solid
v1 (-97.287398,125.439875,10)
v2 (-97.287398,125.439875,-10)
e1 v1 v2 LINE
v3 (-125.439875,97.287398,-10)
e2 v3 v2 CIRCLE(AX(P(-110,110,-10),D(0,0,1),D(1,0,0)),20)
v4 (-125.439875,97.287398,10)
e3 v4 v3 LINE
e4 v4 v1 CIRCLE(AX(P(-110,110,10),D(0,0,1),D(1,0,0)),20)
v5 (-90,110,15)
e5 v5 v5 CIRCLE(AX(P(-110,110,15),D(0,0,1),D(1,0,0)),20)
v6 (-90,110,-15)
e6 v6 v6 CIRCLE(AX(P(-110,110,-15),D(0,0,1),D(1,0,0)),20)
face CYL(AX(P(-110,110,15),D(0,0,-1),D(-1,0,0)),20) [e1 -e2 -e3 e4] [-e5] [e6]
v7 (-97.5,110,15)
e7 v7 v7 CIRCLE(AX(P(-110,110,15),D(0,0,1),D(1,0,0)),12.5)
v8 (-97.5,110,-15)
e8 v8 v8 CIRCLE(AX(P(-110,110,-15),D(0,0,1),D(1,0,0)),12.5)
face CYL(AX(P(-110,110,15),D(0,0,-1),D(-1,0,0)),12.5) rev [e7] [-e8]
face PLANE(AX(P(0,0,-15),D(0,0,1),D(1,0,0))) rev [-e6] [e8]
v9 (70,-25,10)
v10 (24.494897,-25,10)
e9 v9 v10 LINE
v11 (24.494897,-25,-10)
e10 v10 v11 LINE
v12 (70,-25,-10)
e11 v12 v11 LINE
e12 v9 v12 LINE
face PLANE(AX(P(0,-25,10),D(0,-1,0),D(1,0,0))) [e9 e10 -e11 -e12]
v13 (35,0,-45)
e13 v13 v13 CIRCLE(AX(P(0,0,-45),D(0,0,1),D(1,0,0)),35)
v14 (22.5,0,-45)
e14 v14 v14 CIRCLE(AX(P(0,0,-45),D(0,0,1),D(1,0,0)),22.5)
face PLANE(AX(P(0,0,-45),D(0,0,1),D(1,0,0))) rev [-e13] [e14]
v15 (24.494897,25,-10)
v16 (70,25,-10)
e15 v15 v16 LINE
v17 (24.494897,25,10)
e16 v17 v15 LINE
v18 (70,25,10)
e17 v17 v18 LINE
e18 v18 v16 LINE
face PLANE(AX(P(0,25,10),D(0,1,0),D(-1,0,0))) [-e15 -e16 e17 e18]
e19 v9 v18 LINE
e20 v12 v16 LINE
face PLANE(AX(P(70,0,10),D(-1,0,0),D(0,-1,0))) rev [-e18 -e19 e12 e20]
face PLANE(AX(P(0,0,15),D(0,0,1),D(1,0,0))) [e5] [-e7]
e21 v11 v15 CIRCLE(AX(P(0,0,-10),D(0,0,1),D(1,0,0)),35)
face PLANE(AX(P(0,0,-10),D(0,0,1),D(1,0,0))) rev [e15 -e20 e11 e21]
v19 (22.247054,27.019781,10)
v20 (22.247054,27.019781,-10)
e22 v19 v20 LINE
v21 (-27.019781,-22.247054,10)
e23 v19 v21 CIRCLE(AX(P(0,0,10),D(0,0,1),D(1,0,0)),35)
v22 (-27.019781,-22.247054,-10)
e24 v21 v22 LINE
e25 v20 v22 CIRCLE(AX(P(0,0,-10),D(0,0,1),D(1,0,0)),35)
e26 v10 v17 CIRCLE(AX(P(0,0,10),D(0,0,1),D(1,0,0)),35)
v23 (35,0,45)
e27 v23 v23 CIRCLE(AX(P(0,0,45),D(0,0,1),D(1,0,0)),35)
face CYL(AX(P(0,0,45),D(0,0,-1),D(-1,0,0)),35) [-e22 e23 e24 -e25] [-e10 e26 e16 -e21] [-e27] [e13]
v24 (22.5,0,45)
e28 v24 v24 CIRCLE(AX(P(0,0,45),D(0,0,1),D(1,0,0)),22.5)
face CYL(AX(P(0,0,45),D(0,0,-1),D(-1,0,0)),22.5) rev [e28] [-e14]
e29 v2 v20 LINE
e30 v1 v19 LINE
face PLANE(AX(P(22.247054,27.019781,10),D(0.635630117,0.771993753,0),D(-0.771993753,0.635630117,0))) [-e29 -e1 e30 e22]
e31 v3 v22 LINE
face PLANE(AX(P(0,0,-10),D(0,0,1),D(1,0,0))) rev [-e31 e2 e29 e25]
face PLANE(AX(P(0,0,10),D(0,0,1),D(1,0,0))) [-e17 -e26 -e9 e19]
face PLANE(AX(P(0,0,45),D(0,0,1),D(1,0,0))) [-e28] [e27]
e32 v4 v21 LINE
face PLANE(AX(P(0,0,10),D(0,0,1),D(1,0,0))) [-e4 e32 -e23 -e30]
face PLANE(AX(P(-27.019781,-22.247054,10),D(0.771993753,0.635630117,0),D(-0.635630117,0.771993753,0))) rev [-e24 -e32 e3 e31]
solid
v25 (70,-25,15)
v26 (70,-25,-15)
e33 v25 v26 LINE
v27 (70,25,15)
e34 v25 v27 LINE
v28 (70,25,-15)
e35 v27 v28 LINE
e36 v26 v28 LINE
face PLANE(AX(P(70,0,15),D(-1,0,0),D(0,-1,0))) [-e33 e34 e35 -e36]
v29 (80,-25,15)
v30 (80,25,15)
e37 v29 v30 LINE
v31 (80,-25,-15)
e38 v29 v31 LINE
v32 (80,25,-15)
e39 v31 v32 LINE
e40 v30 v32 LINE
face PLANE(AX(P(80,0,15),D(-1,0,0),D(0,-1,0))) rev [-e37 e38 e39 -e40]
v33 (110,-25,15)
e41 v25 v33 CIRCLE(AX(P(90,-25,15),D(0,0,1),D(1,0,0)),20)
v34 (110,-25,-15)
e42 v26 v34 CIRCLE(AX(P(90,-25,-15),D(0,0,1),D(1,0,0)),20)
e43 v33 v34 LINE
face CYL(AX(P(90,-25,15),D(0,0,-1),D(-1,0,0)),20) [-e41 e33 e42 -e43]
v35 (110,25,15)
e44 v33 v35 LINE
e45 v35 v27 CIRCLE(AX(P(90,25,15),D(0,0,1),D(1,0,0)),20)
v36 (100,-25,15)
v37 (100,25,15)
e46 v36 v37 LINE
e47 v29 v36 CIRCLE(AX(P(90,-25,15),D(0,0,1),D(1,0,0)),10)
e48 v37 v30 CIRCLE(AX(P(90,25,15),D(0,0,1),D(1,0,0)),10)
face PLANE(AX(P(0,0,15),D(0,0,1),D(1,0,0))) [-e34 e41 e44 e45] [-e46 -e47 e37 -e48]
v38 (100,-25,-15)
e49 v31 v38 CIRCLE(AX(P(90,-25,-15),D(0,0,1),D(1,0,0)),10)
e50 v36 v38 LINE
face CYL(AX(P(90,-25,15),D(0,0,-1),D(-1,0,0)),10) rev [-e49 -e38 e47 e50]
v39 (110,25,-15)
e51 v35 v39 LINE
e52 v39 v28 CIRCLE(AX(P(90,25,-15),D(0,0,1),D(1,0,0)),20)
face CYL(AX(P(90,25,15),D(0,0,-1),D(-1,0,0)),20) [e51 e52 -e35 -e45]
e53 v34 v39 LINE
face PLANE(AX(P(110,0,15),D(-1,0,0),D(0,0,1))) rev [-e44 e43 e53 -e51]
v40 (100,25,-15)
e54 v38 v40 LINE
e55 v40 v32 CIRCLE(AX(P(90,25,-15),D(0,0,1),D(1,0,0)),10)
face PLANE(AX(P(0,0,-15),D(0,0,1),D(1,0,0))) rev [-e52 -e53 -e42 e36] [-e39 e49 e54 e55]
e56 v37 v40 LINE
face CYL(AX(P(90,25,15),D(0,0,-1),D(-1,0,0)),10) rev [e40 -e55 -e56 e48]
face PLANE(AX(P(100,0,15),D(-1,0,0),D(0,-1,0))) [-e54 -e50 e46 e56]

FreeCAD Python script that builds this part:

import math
import FreeCAD as App
import Part
import Sketcher
Q = App.Units.Quantity

doc = App.newDocument("Part")
body = doc.addObject("PartDesign::Body", "Body")

sketch1 = body.newObject("Sketcher::SketchObject", "Sketch")
sketch1.AttachmentSupport = (doc.getObject("XY_Plane"), [""])
sketch1.MapMode = "FlatFace"
sketch1.addGeometry(Part.Circle(App.Vector(0, 0, 0), App.Vector(0, 0, 1), 35), False)
sketch1.addGeometry(Part.Circle(App.Vector(0, 0, 0), App.Vector(0, 0, 1), 22.5), False)
sketch1.addConstraint(Sketcher.Constraint("Coincident", 0, 3, -1, 1))
sketch1.addConstraint(Sketcher.Constraint("Coincident", 1, 3, -1, 1))
sketch1.addConstraint(Sketcher.Constraint("Diameter", 0, Q("70 mm")))
sketch1.addConstraint(Sketcher.Constraint("Diameter", 1, Q("45 mm")))
pad1 = body.newObject("PartDesign::Pad", "Pad")
pad1.Profile = sketch1
pad1.Length = 90
pad1.Midplane = True
body2 = doc.addObject("PartDesign::Body", "Body001")

sketch2 = body2.newObject("Sketcher::SketchObject", "Sketch001")
sketch2.AttachmentSupport = (doc.getObject("XY_Plane001"), [""])
sketch2.MapMode = "FlatFace"
sketch2.addGeometry(Part.Circle(App.Vector(-110, 110, 0), App.Vector(0, 0, 1), 20), False)
sketch2.addGeometry(Part.Circle(App.Vector(-110, 110, 0), App.Vector(0, 0, 1), 12.5), False)
sketch2.addConstraint(Sketcher.Constraint("Coincident", 1, 3, 0, 3))
sketch2.addConstraint(Sketcher.Constraint("Diameter", 0, Q("40 mm")))
sketch2.addConstraint(Sketcher.Constraint("Diameter", 1, Q("25 mm")))
sketch2.addConstraint(Sketcher.Constraint("DistanceX", 0, 3, -1, 1, Q("110 mm")))
sketch2.addConstraint(Sketcher.Constraint("DistanceY", -1, 1, 0, 3, Q("110 mm")))
pad2 = body2.newObject("PartDesign::Pad", "Pad001")
pad2.Profile = sketch2
pad2.Length = 30
pad2.Midplane = True
body3 = doc.addObject("PartDesign::Body", "Body002")

sketch3 = body3.newObject("Sketcher::SketchObject", "Sketch002")
sketch3.AttachmentSupport = (doc.getObject("XY_Plane002"), [""])
sketch3.MapMode = "FlatFace"
sketch3.addGeometry(Part.LineSegment(App.Vector(70, 25, 0), App.Vector(70, -25, 0)), False)
sketch3.addGeometry(Part.ArcOfCircle(Part.Circle(App.Vector(90, -25, 0), App.Vector(0, 0, 1), 20), math.radians(180), math.radians(360)), False)
sketch3.addGeometry(Part.LineSegment(App.Vector(110, -25, 0), App.Vector(110, 25, 0)), False)
sketch3.addGeometry(Part.ArcOfCircle(Part.Circle(App.Vector(90, 25, 0), App.Vector(0, 0, 1), 20), math.radians(0), math.radians(180)), False)
sketch3.addGeometry(Part.LineSegment(App.Vector(80, -25, 0), App.Vector(80, 25, 0)), False)
sketch3.addGeometry(Part.ArcOfCircle(Part.Circle(App.Vector(90, 25, 0), App.Vector(0, 0, 1), 10), math.radians(0), math.radians(180)), False)
sketch3.addGeometry(Part.LineSegment(App.Vector(100, 25, 0), App.Vector(100, -25, 0)), False)
sketch3.addGeometry(Part.ArcOfCircle(Part.Circle(App.Vector(90, -25, 0), App.Vector(0, 0, 1), 10), math.radians(180), math.radians(360)), False)
sketch3.addConstraint(Sketcher.Constraint("Tangent", 0, 2, 1, 1))
sketch3.addConstraint(Sketcher.Constraint("Tangent", 1, 2, 2, 1))
sketch3.addConstraint(Sketcher.Constraint("Tangent", 2, 2, 3, 1))
sketch3.addConstraint(Sketcher.Constraint("Tangent", 3, 2, 0, 1))
sketch3.addConstraint(Sketcher.Constraint("Tangent", 4, 2, 5, 2))
sketch3.addConstraint(Sketcher.Constraint("Tangent", 5, 1, 6, 1))
sketch3.addConstraint(Sketcher.Constraint("Tangent", 6, 2, 7, 2))
sketch3.addConstraint(Sketcher.Constraint("Tangent", 7, 1, 4, 1))
sketch3.addConstraint(Sketcher.Constraint("Vertical", 0))
sketch3.addConstraint(Sketcher.Constraint("Vertical", 2))
sketch3.addConstraint(Sketcher.Constraint("Vertical", 4))
sketch3.addConstraint(Sketcher.Constraint("Vertical", 6))
sketch3.addConstraint(Sketcher.Constraint("Coincident", 5, 3, 3, 3))
sketch3.addConstraint(Sketcher.Constraint("Horizontal", 7, 3, 0, 2))
sketch3.addConstraint(Sketcher.Constraint("Radius", 1, Q("20 mm")))
sketch3.addConstraint(Sketcher.Constraint("Radius", 5, Q("10 mm")))
sketch3.addConstraint(Sketcher.Constraint("DistanceY", 0, 2, 0, 1, Q("50 mm")))
sketch3.addConstraint(Sketcher.Constraint("DistanceX", -1, 1, 1, 3, Q("90 mm")))
sketch3.addConstraint(Sketcher.Constraint("DistanceY", 1, 3, -1, 1, Q("25 mm")))
pad3 = body3.newObject("PartDesign::Pad", "Pad002")
pad3.Profile = sketch3
pad3.Length = 30
pad3.Midplane = True
body.AllowCompound = True
doc.recompute()

boolean = body.newObject("PartDesign::Boolean", "Boolean")
boolean.Type = "Fuse"
boolean.addObjects([body2])

sketch4 = body.newObject("Sketcher::SketchObject", "Sketch003")
sketch4.AttachmentSupport = (doc.getObject("XY_Plane"), [""])
sketch4.MapMode = "FlatFace"
sketch4.addGeometry(Part.LineSegment(App.Vector(24.494897, -25, 0), App.Vector(70, -25, 0)), False)
sketch4.addGeometry(Part.LineSegment(App.Vector(70, -25, 0), App.Vector(70, 25, 0)), False)
sketch4.addGeometry(Part.LineSegment(App.Vector(70, 25, 0), App.Vector(24.494897, 25, 0)), False)
sketch4.addGeometry(Part.ArcOfCircle(Part.Circle(App.Vector(0, 0, 0), App.Vector(0, 0, 1), 35), math.radians(-45.584691), math.radians(45.584691)), False)
sketch4.addGeometry(Part.LineSegment(App.Vector(-125.439875, 97.287398, 0), App.Vector(-27.019781, -22.247054, 0)), False)
sketch4.addGeometry(Part.ArcOfCircle(Part.Circle(App.Vector(0, 0, 0), App.Vector(0, 0, 1), 35), math.radians(50.533265), math.radians(219.466735)), False)
sketch4.addGeometry(Part.LineSegment(App.Vector(22.247054, 27.019781, 0), App.Vector(-97.287398, 125.439875, 0)), False)
sketch4.addGeometry(Part.ArcOfCircle(Part.Circle(App.Vector(-110, 110, 0), App.Vector(0, 0, 1), 20), math.radians(-140.533265), math.radians(50.533265)), False)
sketch4.addConstraint(Sketcher.Constraint("Coincident", 0, 2, 1, 1))
sketch4.addConstraint(Sketcher.Constraint("Coincident", 1, 2, 2, 1))
sketch4.addConstraint(Sketcher.Constraint("Coincident", 2, 2, 3, 2))
sketch4.addConstraint(Sketcher.Constraint("Coincident", 3, 1, 0, 1))
sketch4.addConstraint(Sketcher.Constraint("Tangent", 4, 2, 5, 2))
sketch4.addConstraint(Sketcher.Constraint("Tangent", 5, 1, 6, 1))
sketch4.addConstraint(Sketcher.Constraint("Tangent", 6, 2, 7, 2))
sketch4.addConstraint(Sketcher.Constraint("Tangent", 7, 1, 4, 1))
sketch4.addConstraint(Sketcher.Constraint("Horizontal", 0))
sketch4.addConstraint(Sketcher.Constraint("Vertical", 1))
sketch4.addConstraint(Sketcher.Constraint("Horizontal", 2))
sketch4.addConstraint(Sketcher.Constraint("Coincident", 3, 3, -1, 1))
sketch4.addConstraint(Sketcher.Constraint("Coincident", 5, 3, -1, 1))
sketch4.addConstraint(Sketcher.Constraint("Equal", 3, 5))
sketch4.addConstraint(Sketcher.Constraint("Vertical", 2, 2, 3, 1))
sketch4.addConstraint(Sketcher.Constraint("Radius", 3, Q("35 mm")))
sketch4.addConstraint(Sketcher.Constraint("Radius", 7, Q("20 mm")))
sketch4.addConstraint(Sketcher.Constraint("DistanceY", 1, 1, 1, 2, Q("50 mm")))
sketch4.addConstraint(Sketcher.Constraint("DistanceX", 7, 3, -1, 1, Q("110 mm")))
sketch4.addConstraint(Sketcher.Constraint("DistanceY", -1, 1, 7, 3, Q("110 mm")))
sketch4.addConstraint(Sketcher.Constraint("DistanceX", -1, 1, 0, 2, Q("70 mm")))
pad4 = body.newObject("PartDesign::Pad", "Pad003")
pad4.Profile = sketch4
pad4.Length = 20
pad4.Midplane = True

doc.recompute()
